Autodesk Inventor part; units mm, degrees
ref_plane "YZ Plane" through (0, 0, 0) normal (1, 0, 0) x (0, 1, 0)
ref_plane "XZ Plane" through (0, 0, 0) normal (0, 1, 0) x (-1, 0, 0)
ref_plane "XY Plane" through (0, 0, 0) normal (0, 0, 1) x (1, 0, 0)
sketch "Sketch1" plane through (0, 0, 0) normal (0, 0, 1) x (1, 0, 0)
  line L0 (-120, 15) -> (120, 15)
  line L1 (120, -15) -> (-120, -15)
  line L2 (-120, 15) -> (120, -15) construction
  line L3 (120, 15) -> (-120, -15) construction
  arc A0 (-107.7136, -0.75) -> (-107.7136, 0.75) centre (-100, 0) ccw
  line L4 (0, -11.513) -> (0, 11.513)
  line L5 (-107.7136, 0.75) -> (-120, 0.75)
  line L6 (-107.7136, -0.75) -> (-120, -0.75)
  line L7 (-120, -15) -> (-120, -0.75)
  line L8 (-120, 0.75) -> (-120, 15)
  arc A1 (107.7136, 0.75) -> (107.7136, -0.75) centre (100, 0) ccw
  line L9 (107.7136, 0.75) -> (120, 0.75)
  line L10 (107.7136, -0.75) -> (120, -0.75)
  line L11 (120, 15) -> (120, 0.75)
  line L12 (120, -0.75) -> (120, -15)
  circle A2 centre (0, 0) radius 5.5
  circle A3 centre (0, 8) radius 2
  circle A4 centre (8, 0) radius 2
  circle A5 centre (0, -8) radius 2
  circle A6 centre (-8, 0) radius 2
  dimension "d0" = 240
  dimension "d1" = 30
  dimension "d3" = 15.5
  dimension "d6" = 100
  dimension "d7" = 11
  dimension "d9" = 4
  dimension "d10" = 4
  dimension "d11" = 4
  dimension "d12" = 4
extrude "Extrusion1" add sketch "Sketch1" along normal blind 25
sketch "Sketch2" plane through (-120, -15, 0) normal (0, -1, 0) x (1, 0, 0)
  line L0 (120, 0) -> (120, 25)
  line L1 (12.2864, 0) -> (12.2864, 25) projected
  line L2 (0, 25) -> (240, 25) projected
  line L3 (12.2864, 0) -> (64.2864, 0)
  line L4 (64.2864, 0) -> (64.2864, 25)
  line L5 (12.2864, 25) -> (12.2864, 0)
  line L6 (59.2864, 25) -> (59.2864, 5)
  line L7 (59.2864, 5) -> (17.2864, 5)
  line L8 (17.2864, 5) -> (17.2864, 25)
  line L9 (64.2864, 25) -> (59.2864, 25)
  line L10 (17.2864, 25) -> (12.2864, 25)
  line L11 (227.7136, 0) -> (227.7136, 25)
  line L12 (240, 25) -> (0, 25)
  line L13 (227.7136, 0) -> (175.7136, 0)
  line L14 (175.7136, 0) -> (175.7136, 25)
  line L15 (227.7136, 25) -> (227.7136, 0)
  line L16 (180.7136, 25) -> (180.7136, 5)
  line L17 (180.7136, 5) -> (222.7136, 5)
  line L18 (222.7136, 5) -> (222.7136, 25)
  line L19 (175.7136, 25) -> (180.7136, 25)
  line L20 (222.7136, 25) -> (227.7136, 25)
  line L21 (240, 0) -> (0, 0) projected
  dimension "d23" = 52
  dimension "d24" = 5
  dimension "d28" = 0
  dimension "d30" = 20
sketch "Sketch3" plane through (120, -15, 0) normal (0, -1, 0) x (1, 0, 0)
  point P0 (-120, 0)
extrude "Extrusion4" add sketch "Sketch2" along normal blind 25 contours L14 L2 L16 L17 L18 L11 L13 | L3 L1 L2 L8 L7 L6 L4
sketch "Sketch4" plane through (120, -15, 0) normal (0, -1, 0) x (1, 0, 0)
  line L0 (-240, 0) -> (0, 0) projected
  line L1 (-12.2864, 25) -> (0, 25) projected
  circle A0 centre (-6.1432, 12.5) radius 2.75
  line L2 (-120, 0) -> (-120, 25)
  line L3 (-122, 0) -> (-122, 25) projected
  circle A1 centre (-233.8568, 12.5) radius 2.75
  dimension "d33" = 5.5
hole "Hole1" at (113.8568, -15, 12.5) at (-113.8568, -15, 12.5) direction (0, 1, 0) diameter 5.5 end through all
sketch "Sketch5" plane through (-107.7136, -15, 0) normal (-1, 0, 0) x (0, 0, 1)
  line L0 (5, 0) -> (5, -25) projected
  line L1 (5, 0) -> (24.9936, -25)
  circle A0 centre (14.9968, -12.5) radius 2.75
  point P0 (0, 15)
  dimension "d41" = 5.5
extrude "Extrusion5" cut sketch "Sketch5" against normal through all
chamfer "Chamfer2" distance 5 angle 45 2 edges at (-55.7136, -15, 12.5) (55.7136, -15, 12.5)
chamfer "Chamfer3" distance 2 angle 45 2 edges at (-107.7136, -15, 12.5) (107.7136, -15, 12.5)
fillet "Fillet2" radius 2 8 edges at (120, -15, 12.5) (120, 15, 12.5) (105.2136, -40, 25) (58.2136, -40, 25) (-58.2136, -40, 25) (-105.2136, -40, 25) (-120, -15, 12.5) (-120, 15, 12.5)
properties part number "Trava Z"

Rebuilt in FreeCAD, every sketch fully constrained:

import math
import FreeCAD as App
import Part
import Sketcher


def edges_at(feature, points):
    """Names of the edges that pass closest to the given points."""
    edges = feature.Shape.Edges
    near = lambda p: min(range(len(edges)), key=lambda i: edges[i].distToShape(Part.Vertex(*p))[0])
    return sorted({f"Edge{near(p) + 1}" for p in points})

doc = App.newDocument("Part")
body = doc.addObject("PartDesign::Body", "Body")

# Sketch on XY plane
sketch1 = doc.addObject("Sketcher::SketchObject", "Sketch")
body.addObject(sketch1)
sketch1.AttachmentSupport = (doc.XY_Plane, [""])
sketch1.MapMode = "FlatFace"
sketch1.addGeometry(Part.LineSegment(App.Vector(120, 15, 0), App.Vector(-120, 15, 0)), False)
sketch1.addGeometry(Part.LineSegment(App.Vector(-120, 15, 0), App.Vector(-120, 0.75, 0)), False)
sketch1.addGeometry(Part.LineSegment(App.Vector(-120, 0.75, 0), App.Vector(-107.7136, 0.75, 0)), False)
sketch1.addGeometry(Part.ArcOfCircle(Part.Circle(App.Vector(-100, 0, 0), App.Vector(0, 0, 1), 7.749976), math.radians(-174.446538), math.radians(174.446538)), False)
sketch1.addGeometry(Part.LineSegment(App.Vector(-107.7136, -0.75, 0), App.Vector(-120, -0.75, 0)), False)
sketch1.addGeometry(Part.LineSegment(App.Vector(-120, -0.75, 0), App.Vector(-120, -15, 0)), False)
sketch1.addGeometry(Part.LineSegment(App.Vector(-120, -15, 0), App.Vector(120, -15, 0)), False)
sketch1.addGeometry(Part.LineSegment(App.Vector(120, -15, 0), App.Vector(120, -0.75, 0)), False)
sketch1.addGeometry(Part.LineSegment(App.Vector(120, -0.75, 0), App.Vector(107.7136, -0.75, 0)), False)
sketch1.addGeometry(Part.ArcOfCircle(Part.Circle(App.Vector(100, 0, 0), App.Vector(0, 0, 1), 7.749976), math.radians(5.553462), math.radians(354.446538)), False)
sketch1.addGeometry(Part.LineSegment(App.Vector(107.7136, 0.75, 0), App.Vector(120, 0.75, 0)), False)
sketch1.addGeometry(Part.LineSegment(App.Vector(120, 0.75, 0), App.Vector(120, 15, 0)), False)
sketch1.addGeometry(Part.Circle(App.Vector(0, -8, 0), App.Vector(0, 0, 1), 2), False)
sketch1.addGeometry(Part.Circle(App.Vector(-8, 0, 0), App.Vector(0, 0, 1), 2), False)
sketch1.addGeometry(Part.ArcOfCircle(Part.Circle(App.Vector(0, 0, 0), App.Vector(0, 0, 1), 5.5), math.radians(-90), math.radians(90)), False)
sketch1.addGeometry(Part.ArcOfCircle(Part.Circle(App.Vector(0, 0, 0), App.Vector(0, 0, 1), 5.5), math.radians(90), math.radians(270)), False)
sketch1.addGeometry(Part.Circle(App.Vector(8, 0, 0), App.Vector(0, 0, 1), 2), False)
sketch1.addGeometry(Part.Circle(App.Vector(0, 8, 0), App.Vector(0, 0, 1), 2), False)
sketch1.addConstraint(Sketcher.Constraint("Coincident", 0, 2, 1, 1))
sketch1.addConstraint(Sketcher.Constraint("Coincident", 1, 2, 2, 1))
sketch1.addConstraint(Sketcher.Constraint("Coincident", 2, 2, 3, 2))
sketch1.addConstraint(Sketcher.Constraint("Coincident", 3, 1, 4, 1))
sketch1.addConstraint(Sketcher.Constraint("Coincident", 4, 2, 5, 1))
sketch1.addConstraint(Sketcher.Constraint("Coincident", 5, 2, 6, 1))
sketch1.addConstraint(Sketcher.Constraint("Coincident", 6, 2, 7, 1))
sketch1.addConstraint(Sketcher.Constraint("Coincident", 7, 2, 8, 1))
sketch1.addConstraint(Sketcher.Constraint("Coincident", 8, 2, 9, 2))
sketch1.addConstraint(Sketcher.Constraint("Coincident", 9, 1, 10, 1))
sketch1.addConstraint(Sketcher.Constraint("Coincident", 10, 2, 11, 1))
sketch1.addConstraint(Sketcher.Constraint("Coincident", 11, 2, 0, 1))
sketch1.addConstraint(Sketcher.Constraint("Tangent", 14, 1, 15, 2))
sketch1.addConstraint(Sketcher.Constraint("Coincident", 15, 1, 14, 2))
sketch1.addConstraint(Sketcher.Constraint("Horizontal", 0))
sketch1.addConstraint(Sketcher.Constraint("Vertical", 1))
sketch1.addConstraint(Sketcher.Constraint("Horizontal", 2))
sketch1.addConstraint(Sketcher.Constraint("Horizontal", 4))
sketch1.addConstraint(Sketcher.Constraint("Vertical", 5))
sketch1.addConstraint(Sketcher.Constraint("Horizontal", 6))
sketch1.addConstraint(Sketcher.Constraint("Vertical", 7))
sketch1.addConstraint(Sketcher.Constraint("Horizontal", 8))
sketch1.addConstraint(Sketcher.Constraint("Horizontal", 10))
sketch1.addConstraint(Sketcher.Constraint("Vertical", 11))
sketch1.addConstraint(Sketcher.Constraint("Coincident", 14, 3, -1, 1))
sketch1.addConstraint(Sketcher.Constraint("Equal", 3, 9))
sketch1.addConstraint(Sketcher.Constraint("Equal", 12, 13))
sketch1.addConstraint(Sketcher.Constraint("Equal", 13, 16))
sketch1.addConstraint(Sketcher.Constraint("Equal", 16, 17))
sketch1.addConstraint(Sketcher.Constraint("Symmetric", 3, 3, 9, 3, -1, 1))
sketch1.addConstraint(Sketcher.Constraint("Symmetric", 13, 3, 16, 3, -1, 1))
sketch1.addConstraint(Sketcher.Constraint("Symmetric", 12, 3, 17, 3, -1, 1))
sketch1.addConstraint(Sketcher.Constraint("Symmetric", 0, 2, 6, 2, -1, 1))
sketch1.addConstraint(Sketcher.Constraint("Symmetric", 4, 2, 10, 2, -1, 1))
sketch1.addConstraint(Sketcher.Constraint("Symmetric", 4, 2, 7, 2, -2))
sketch1.addConstraint(Sketcher.Constraint("Symmetric", 2, 2, 9, 1, -2))
sketch1.addConstraint(Sketcher.Constraint("PointOnObject", 12, 3, -2))
sketch1.addConstraint(Sketcher.Constraint("PointOnObject", 13, 3, -1))
sketch1.addConstraint(Sketcher.Constraint("PointOnObject", 14, 1, -2))
sketch1.addConstraint(Sketcher.Constraint("PointOnObject", 15, 1, -2))
sketch1.addConstraint(Sketcher.Constraint("Diameter", 12, 4.0))
sketch1.addConstraint(Sketcher.Constraint("Radius", 14, 5.5))
sketch1.addConstraint(Sketcher.Constraint("DistanceX", 0, 2, 0, 1, 240.0))
sketch1.addConstraint(Sketcher.Constraint("Radius", 3, 7.75))
sketch1.addConstraint(Sketcher.Constraint("DistanceX", 3, 3, -1, 1, 100.0))
sketch1.addConstraint(Sketcher.Constraint("DistanceY", 12, 3, -1, 1, 8.0))
sketch1.addConstraint(Sketcher.Constraint("DistanceX", 13, 3, -1, 1, 8.0))
sketch1.addConstraint(Sketcher.Constraint("DistanceY", -1, 1, 0, 2, 15.0))
sketch1.addConstraint(Sketcher.Constraint("DistanceY", 1, 2, 1, 1, 14.25))
pad1 = doc.addObject("PartDesign::Pad", "Pad")
body.addObject(pad1)
pad1.Profile = sketch1
pad1.Length = 25

# Sketch on XZ plane
sketch2 = doc.addObject("Sketcher::SketchObject", "Sketch001")
body.addObject(sketch2)
sketch2.AttachmentSupport = (doc.XZ_Plane, [""])
sketch2.MapMode = "FlatFace"
sketch2.AttachmentOffset = App.Placement(App.Vector(0, 0, 15), App.Rotation())
sketch2.addGeometry(Part.LineSegment(App.Vector(55.7136, 25, 0), App.Vector(55.7136, 0, 0)), False)
sketch2.addGeometry(Part.LineSegment(App.Vector(55.7136, 0, 0), App.Vector(107.7136, 0, 0)), False)
sketch2.addGeometry(Part.LineSegment(App.Vector(107.7136, 0, 0), App.Vector(107.7136, 25, 0)), False)
sketch2.addGeometry(Part.LineSegment(App.Vector(107.7136, 25, 0), App.Vector(102.7136, 25, 0)), False)
sketch2.addGeometry(Part.LineSegment(App.Vector(102.7136, 25, 0), App.Vector(102.7136, 5, 0)), False)
sketch2.addGeometry(Part.LineSegment(App.Vector(102.7136, 5, 0), App.Vector(60.7136, 5, 0)), False)
sketch2.addGeometry(Part.LineSegment(App.Vector(60.7136, 5, 0), App.Vector(60.7136, 25, 0)), False)
sketch2.addGeometry(Part.LineSegment(App.Vector(60.7136, 25, 0), App.Vector(55.7136, 25, 0)), False)
sketch2.addGeometry(Part.LineSegment(App.Vector(-107.7136, 0, 0), App.Vector(-55.7136, 0, 0)), False)
sketch2.addGeometry(Part.LineSegment(App.Vector(-55.7136, 0, 0), App.Vector(-55.7136, 25, 0)), False)
sketch2.addGeometry(Part.LineSegment(App.Vector(-55.7136, 25, 0), App.Vector(-60.7136, 25, 0)), False)
sketch2.addGeometry(Part.LineSegment(App.Vector(-60.7136, 25, 0), App.Vector(-60.7136, 5, 0)), False)
sketch2.addGeometry(Part.LineSegment(App.Vector(-60.7136, 5, 0), App.Vector(-102.7136, 5, 0)), False)
sketch2.addGeometry(Part.LineSegment(App.Vector(-102.7136, 5, 0), App.Vector(-102.7136, 25, 0)), False)
sketch2.addGeometry(Part.LineSegment(App.Vector(-102.7136, 25, 0), App.Vector(-107.7136, 25, 0)), False)
sketch2.addGeometry(Part.LineSegment(App.Vector(-107.7136, 25, 0), App.Vector(-107.7136, 0, 0)), False)
sketch2.addConstraint(Sketcher.Constraint("Coincident", 0, 2, 1, 1))
sketch2.addConstraint(Sketcher.Constraint("Coincident", 1, 2, 2, 1))
sketch2.addConstraint(Sketcher.Constraint("Coincident", 2, 2, 3, 1))
sketch2.addConstraint(Sketcher.Constraint("Coincident", 3, 2, 4, 1))
sketch2.addConstraint(Sketcher.Constraint("Coincident", 4, 2, 5, 1))
sketch2.addConstraint(Sketcher.Constraint("Coincident", 5, 2, 6, 1))
sketch2.addConstraint(Sketcher.Constraint("Coincident", 6, 2, 7, 1))
sketch2.addConstraint(Sketcher.Constraint("Coincident", 7, 2, 0, 1))
sketch2.addConstraint(Sketcher.Constraint("Coincident", 8, 2, 9, 1))
sketch2.addConstraint(Sketcher.Constraint("Coincident", 9, 2, 10, 1))
sketch2.addConstraint(Sketcher.Constraint("Coincident", 10, 2, 11, 1))
sketch2.addConstraint(Sketcher.Constraint("Coincident", 11, 2, 12, 1))
sketch2.addConstraint(Sketcher.Constraint("Coincident", 12, 2, 13, 1))
sketch2.addConstraint(Sketcher.Constraint("Coincident", 13, 2, 14, 1))
sketch2.addConstraint(Sketcher.Constraint("Coincident", 14, 2, 15, 1))
sketch2.addConstraint(Sketcher.Constraint("Coincident", 15, 2, 8, 1))
sketch2.addConstraint(Sketcher.Constraint("Vertical", 0))
sketch2.addConstraint(Sketcher.Constraint("Horizontal", 1))
sketch2.addConstraint(Sketcher.Constraint("Vertical", 2))
sketch2.addConstraint(Sketcher.Constraint("Horizontal", 3))
sketch2.addConstraint(Sketcher.Constraint("Vertical", 4))
sketch2.addConstraint(Sketcher.Constraint("Horizontal", 5))
sketch2.addConstraint(Sketcher.Constraint("Vertical", 6))
sketch2.addConstraint(Sketcher.Constraint("Horizontal", 7))
sketch2.addConstraint(Sketcher.Constraint("Horizontal", 8))
sketch2.addConstraint(Sketcher.Constraint("Vertical", 9))
sketch2.addConstraint(Sketcher.Constraint("Horizontal", 10))
sketch2.addConstraint(Sketcher.Constraint("Vertical", 11))
sketch2.addConstraint(Sketcher.Constraint("Horizontal", 12))
sketch2.addConstraint(Sketcher.Constraint("Vertical", 13))
sketch2.addConstraint(Sketcher.Constraint("Horizontal", 14))
sketch2.addConstraint(Sketcher.Constraint("Vertical", 15))
sketch2.addConstraint(Sketcher.Constraint("Symmetric", 0, 2, 8, 2, -1, 1))
sketch2.addConstraint(Sketcher.Constraint("Symmetric", 6, 2, 10, 2, -2))
sketch2.addConstraint(Sketcher.Constraint("Symmetric", 4, 2, 12, 2, -2))
sketch2.addConstraint(Sketcher.Constraint("Symmetric", 2, 2, 14, 2, -2))
sketch2.addConstraint(Sketcher.Constraint("PointOnObject", 0, 2, -1))
sketch2.addConstraint(Sketcher.Constraint("Horizontal", 3, 2, 6, 2))
sketch2.addConstraint(Sketcher.Constraint("Equal", 3, 7))
sketch2.addConstraint(Sketcher.Constraint("DistanceX", 1, 1, 1, 2, 52.0))
sketch2.addConstraint(Sketcher.Constraint("DistanceX", 3, 2, 3, 1, 5.0))
sketch2.addConstraint(Sketcher.Constraint("DistanceY", 4, 2, 4, 1, 20.0))
sketch2.addConstraint(Sketcher.Constraint("DistanceY", -1, 1, 4, 2, 5.0))
sketch2.addConstraint(Sketcher.Constraint("DistanceX", -1, 1, 0, 2, 55.7136))
pad2 = doc.addObject("PartDesign::Pad", "Pad001")
body.addObject(pad2)
pad2.Profile = sketch2
pad2.Length = 25

# Sketch on XZ plane
sketch3 = doc.addObject("Sketcher::SketchObject", "Sketch002")
body.addObject(sketch3)
sketch3.AttachmentSupport = (doc.XZ_Plane, [""])
sketch3.MapMode = "FlatFace"
sketch3.AttachmentOffset = App.Placement(App.Vector(0, 0, 15), App.Rotation())
sketch3.addGeometry(Part.Circle(App.Vector(113.8568, 12.5, 0), App.Vector(0, 0, 1), 2.75), False)
sketch3.addGeometry(Part.Circle(App.Vector(-113.8568, 12.5, 0), App.Vector(0, 0, 1), 2.75), False)
sketch3.addConstraint(Sketcher.Constraint("Equal", 0, 1))
sketch3.addConstraint(Sketcher.Constraint("Symmetric", 0, 3, 1, 3, -2))
sketch3.addConstraint(Sketcher.Constraint("Diameter", 0, 5.5))
sketch3.addConstraint(Sketcher.Constraint("DistanceY", -1, 1, 0, 3, 12.5))
sketch3.addConstraint(Sketcher.Constraint("DistanceX", -1, 1, 0, 3, 113.8568))
doc.recompute()
hole = doc.addObject("PartDesign::Hole", "Hole")
body.addObject(hole)
hole.Profile = sketch3
hole.ThreadType = "None"
hole.Diameter = 5.5
hole.DepthType = "ThroughAll"

# Sketch on YZ plane
sketch4 = doc.addObject("Sketcher::SketchObject", "Sketch003")
body.addObject(sketch4)
sketch4.AttachmentSupport = (doc.YZ_Plane, [""])
sketch4.MapMode = "FlatFace"
sketch4.AttachmentOffset = App.Placement(App.Vector(0, 0, -107.7136), App.Rotation())
sketch4.addGeometry(Part.Circle(App.Vector(-27.5, 14.9968, 0), App.Vector(0, 0, 1), 2.75), False)
sketch4.addConstraint(Sketcher.Constraint("Diameter", 0, 5.5))
sketch4.addConstraint(Sketcher.Constraint("DistanceX", 0, 3, -1, 1, 27.5))
sketch4.addConstraint(Sketcher.Constraint("DistanceY", -1, 1, 0, 3, 14.9968))
pocket1 = doc.addObject("PartDesign::Pocket", "Pocket")
body.addObject(pocket1)
pocket1.Profile = sketch4
pocket1.Type = "ThroughAll"
pocket1.Reversed = True
doc.recompute()

chamfer = doc.addObject("PartDesign::Chamfer", "Chamfer")
body.addObject(chamfer)
chamfer.Base = (pocket1, edges_at(pocket1, [(-55.714, -15, 12.5), (55.714, -15, 12.5)]))
chamfer.Size = 5
doc.recompute()

chamfer2 = doc.addObject("PartDesign::Chamfer", "Chamfer001")
body.addObject(chamfer2)
chamfer2.Base = (chamfer, edges_at(chamfer, [(-107.714, -15, 12.5), (107.714, -15, 12.5)]))
chamfer2.Size = 2
doc.recompute()

fillet = doc.addObject("PartDesign::Fillet", "Fillet")
body.addObject(fillet)
fillet.Base = (chamfer2, edges_at(chamfer2, [
    (120, -15, 12.5),
    (120, 15, 12.5),
    (105.214, -40, 25),
    (58.214, -40, 25),
    (-58.214, -40, 25),
    (-105.214, -40, 25),
    (-120, -15, 12.5),
    (-120, 15, 12.5),
]))
fillet.Radius = 2

doc.recompute()
